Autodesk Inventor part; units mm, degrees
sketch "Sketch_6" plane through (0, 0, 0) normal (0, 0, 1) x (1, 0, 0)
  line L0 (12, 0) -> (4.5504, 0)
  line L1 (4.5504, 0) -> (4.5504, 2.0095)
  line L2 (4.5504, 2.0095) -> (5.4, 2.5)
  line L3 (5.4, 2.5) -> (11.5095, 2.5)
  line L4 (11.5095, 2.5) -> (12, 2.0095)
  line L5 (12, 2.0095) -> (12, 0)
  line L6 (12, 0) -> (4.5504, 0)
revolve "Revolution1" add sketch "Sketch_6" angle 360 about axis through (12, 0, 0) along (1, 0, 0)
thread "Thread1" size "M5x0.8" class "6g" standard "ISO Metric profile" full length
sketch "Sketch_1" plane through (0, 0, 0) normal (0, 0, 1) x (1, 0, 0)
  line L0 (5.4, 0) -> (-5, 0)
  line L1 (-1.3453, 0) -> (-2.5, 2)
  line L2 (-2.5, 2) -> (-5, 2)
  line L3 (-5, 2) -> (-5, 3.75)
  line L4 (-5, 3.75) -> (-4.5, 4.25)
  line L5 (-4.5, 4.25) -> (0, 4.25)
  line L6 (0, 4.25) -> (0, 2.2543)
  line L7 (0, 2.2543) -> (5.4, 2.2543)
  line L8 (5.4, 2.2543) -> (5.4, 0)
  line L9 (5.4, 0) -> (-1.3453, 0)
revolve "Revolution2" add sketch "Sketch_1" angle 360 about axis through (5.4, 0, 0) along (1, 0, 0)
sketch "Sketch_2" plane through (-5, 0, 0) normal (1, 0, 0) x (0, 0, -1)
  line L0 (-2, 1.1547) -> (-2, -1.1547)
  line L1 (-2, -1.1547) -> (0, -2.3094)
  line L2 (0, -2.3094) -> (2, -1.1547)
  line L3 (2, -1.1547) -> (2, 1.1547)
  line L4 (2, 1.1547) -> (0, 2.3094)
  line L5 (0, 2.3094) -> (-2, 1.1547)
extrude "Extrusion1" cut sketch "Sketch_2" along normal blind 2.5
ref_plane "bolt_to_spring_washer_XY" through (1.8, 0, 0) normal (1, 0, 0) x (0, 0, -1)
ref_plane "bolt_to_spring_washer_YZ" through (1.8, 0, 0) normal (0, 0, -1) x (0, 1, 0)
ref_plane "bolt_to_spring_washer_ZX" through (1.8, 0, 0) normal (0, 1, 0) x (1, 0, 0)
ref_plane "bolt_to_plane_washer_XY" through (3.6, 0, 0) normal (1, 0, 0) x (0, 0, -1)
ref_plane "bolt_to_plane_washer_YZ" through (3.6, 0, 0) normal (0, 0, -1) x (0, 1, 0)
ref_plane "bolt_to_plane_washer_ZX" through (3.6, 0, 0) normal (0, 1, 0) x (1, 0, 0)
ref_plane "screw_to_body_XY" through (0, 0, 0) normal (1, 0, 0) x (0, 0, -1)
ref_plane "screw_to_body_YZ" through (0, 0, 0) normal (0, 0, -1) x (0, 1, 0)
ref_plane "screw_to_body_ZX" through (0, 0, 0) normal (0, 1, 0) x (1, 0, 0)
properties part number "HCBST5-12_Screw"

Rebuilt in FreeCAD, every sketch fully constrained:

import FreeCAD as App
import Part
import Sketcher
Q = App.Units.Quantity


def add_polygon(sketch, points):
    """Adds a closed chain of lines whose ends are joined by coincident constraints."""
    first, n = sketch.GeometryCount, len(points)
    for a, b in zip(points, points[1:] + points[:1]):
        sketch.addGeometry(Part.LineSegment(App.Vector(*a, 0), App.Vector(*b, 0)), False)
    for i in range(n):
        sketch.addConstraint(Sketcher.Constraint("Coincident", first + i, 2, first + (i + 1) % n, 1))

doc = App.newDocument("Part")
body = doc.addObject("PartDesign::Body", "Body")

# Sketch on XY plane
sketch1 = doc.addObject("Sketcher::SketchObject", "Sketch")
body.addObject(sketch1)
sketch1.AttachmentSupport = (doc.XY_Plane, [""])
sketch1.MapMode = "FlatFace"
add_polygon(sketch1, [(4.6, 0), (12, 0), (12, 2), (11.5, 2.5), (5.4, 2.5), (4.6, 2)])  # lines 0-5
sketch1.addConstraint(Sketcher.Constraint("Horizontal", 0))
sketch1.addConstraint(Sketcher.Constraint("Vertical", 1))
sketch1.addConstraint(Sketcher.Constraint("Horizontal", 3))
sketch1.addConstraint(Sketcher.Constraint("Vertical", 5))
sketch1.addConstraint(Sketcher.Constraint("PointOnObject", 0, 2, -1))
sketch1.addConstraint(Sketcher.Constraint("Horizontal", 1, 2, 4, 2))
sketch1.addConstraint(Sketcher.Constraint("Angle", 2, Q("135 deg")))
sketch1.addConstraint(Sketcher.Constraint("Angle", 4, Q("-150.0008 deg")))
sketch1.addConstraint(Sketcher.Constraint("DistanceX", -1, 1, 0, 2, Q("12 mm")))
sketch1.addConstraint(Sketcher.Constraint("DistanceY", -1, 1, 2, 2, Q("2.5 mm")))
sketch1.addConstraint(Sketcher.Constraint("DistanceX", -1, 1, 3, 2, Q("5.4 mm")))
sketch1.addConstraint(Sketcher.Constraint("Distance", 4, Q("0.981 mm")))
revolution = doc.addObject("PartDesign::Revolution", "Revolution")
body.addObject(revolution)
revolution.Profile = sketch1
revolution.ReferenceAxis = (sketch1, ["H_Axis"])
revolution.Angle = 360

# Sketch on XY plane
sketch2 = doc.addObject("Sketcher::SketchObject", "Sketch001")
body.addObject(sketch2)
sketch2.AttachmentSupport = (doc.XY_Plane, [""])
sketch2.MapMode = "FlatFace"
add_polygon(sketch2, [(-1.3, 0), (5.4, 0), (5.4, 2.3), (0, 2.3), (0, 4.2), (-4.5, 4.2), (-5, 3.8), (-5, 2), (-2.5, 2)])  # lines 0-8
sketch2.addConstraint(Sketcher.Constraint("Horizontal", 0))
sketch2.addConstraint(Sketcher.Constraint("Vertical", 1))
sketch2.addConstraint(Sketcher.Constraint("Horizontal", 2))
sketch2.addConstraint(Sketcher.Constraint("Vertical", 3))
sketch2.addConstraint(Sketcher.Constraint("Horizontal", 4))
sketch2.addConstraint(Sketcher.Constraint("Vertical", 6))
sketch2.addConstraint(Sketcher.Constraint("Horizontal", 7))
sketch2.addConstraint(Sketcher.Constraint("PointOnObject", 0, 2, -1))
sketch2.addConstraint(Sketcher.Constraint("PointOnObject", 2, 2, -2))
sketch2.addConstraint(Sketcher.Constraint("Angle", 5, Q("-135 deg")))
sketch2.addConstraint(Sketcher.Constraint("Angle", 8, Q("-60 deg")))
sketch2.addConstraint(Sketcher.Constraint("DistanceX", 2, 2, 2, 1, Q("5.4 mm")))
sketch2.addConstraint(Sketcher.Constraint("DistanceX", 4, 2, 4, 1, Q("4.5 mm")))
sketch2.addConstraint(Sketcher.Constraint("DistanceX", 7, 1, 7, 2, Q("2.5 mm")))
sketch2.addConstraint(Sketcher.Constraint("DistanceX", 5, 2, -1, 1, Q("5 mm")))
sketch2.addConstraint(Sketcher.Constraint("DistanceY", -1, 1, 6, 2, Q("2 mm")))
sketch2.addConstraint(Sketcher.Constraint("DistanceY", 6, 2, 6, 1, Q("1.75 mm")))
sketch2.addConstraint(Sketcher.Constraint("DistanceY", 1, 1, 1, 2, Q("2.2543 mm")))
revolution2 = doc.addObject("PartDesign::Revolution", "Revolution001")
body.addObject(revolution2)
revolution2.Profile = sketch2
revolution2.ReferenceAxis = (sketch2, ["H_Axis"])
revolution2.Angle = 360

# Sketch on YZ plane
sketch3 = doc.addObject("Sketcher::SketchObject", "Sketch002")
body.addObject(sketch3)
sketch3.AttachmentSupport = (doc.YZ_Plane, [""])
sketch3.MapMode = "FlatFace"
sketch3.AttachmentOffset = App.Placement(App.Vector(0, 0, -5), App.Rotation())
add_polygon(sketch3, [(2.3, 0), (1.2, 2), (-1.2, 2), (-2.3, 0), (-1.2, -2), (1.2, -2)])  # lines 0-5
sketch3.addConstraint(Sketcher.Constraint("Horizontal", 1))
sketch3.addConstraint(Sketcher.Constraint("Horizontal", 4))
sketch3.addConstraint(Sketcher.Constraint("Symmetric", 0, 2, 3, 2, -1, 1))
sketch3.addConstraint(Sketcher.Constraint("Symmetric", 2, 2, 5, 2, -1, 1))
sketch3.addConstraint(Sketcher.Constraint("PointOnObject", 2, 2, -1))
sketch3.addConstraint(Sketcher.Constraint("Parallel", 2, 5))
sketch3.addConstraint(Sketcher.Constraint("Vertical", 1, 2, 3, 2))
sketch3.addConstraint(Sketcher.Constraint("Angle", 0, Q("120 deg")))
sketch3.addConstraint(Sketcher.Constraint("DistanceY", -1, 1, 0, 2, Q("2 mm")))
sketch3.addConstraint(Sketcher.Constraint("DistanceX", 1, 2, 1, 1, Q("2.3094 mm")))
pocket1 = doc.addObject("PartDesign::Pocket", "Pocket")
body.addObject(pocket1)
pocket1.Profile = sketch3
pocket1.Length = 2.5
pocket1.Reversed = True

doc.recompute()
